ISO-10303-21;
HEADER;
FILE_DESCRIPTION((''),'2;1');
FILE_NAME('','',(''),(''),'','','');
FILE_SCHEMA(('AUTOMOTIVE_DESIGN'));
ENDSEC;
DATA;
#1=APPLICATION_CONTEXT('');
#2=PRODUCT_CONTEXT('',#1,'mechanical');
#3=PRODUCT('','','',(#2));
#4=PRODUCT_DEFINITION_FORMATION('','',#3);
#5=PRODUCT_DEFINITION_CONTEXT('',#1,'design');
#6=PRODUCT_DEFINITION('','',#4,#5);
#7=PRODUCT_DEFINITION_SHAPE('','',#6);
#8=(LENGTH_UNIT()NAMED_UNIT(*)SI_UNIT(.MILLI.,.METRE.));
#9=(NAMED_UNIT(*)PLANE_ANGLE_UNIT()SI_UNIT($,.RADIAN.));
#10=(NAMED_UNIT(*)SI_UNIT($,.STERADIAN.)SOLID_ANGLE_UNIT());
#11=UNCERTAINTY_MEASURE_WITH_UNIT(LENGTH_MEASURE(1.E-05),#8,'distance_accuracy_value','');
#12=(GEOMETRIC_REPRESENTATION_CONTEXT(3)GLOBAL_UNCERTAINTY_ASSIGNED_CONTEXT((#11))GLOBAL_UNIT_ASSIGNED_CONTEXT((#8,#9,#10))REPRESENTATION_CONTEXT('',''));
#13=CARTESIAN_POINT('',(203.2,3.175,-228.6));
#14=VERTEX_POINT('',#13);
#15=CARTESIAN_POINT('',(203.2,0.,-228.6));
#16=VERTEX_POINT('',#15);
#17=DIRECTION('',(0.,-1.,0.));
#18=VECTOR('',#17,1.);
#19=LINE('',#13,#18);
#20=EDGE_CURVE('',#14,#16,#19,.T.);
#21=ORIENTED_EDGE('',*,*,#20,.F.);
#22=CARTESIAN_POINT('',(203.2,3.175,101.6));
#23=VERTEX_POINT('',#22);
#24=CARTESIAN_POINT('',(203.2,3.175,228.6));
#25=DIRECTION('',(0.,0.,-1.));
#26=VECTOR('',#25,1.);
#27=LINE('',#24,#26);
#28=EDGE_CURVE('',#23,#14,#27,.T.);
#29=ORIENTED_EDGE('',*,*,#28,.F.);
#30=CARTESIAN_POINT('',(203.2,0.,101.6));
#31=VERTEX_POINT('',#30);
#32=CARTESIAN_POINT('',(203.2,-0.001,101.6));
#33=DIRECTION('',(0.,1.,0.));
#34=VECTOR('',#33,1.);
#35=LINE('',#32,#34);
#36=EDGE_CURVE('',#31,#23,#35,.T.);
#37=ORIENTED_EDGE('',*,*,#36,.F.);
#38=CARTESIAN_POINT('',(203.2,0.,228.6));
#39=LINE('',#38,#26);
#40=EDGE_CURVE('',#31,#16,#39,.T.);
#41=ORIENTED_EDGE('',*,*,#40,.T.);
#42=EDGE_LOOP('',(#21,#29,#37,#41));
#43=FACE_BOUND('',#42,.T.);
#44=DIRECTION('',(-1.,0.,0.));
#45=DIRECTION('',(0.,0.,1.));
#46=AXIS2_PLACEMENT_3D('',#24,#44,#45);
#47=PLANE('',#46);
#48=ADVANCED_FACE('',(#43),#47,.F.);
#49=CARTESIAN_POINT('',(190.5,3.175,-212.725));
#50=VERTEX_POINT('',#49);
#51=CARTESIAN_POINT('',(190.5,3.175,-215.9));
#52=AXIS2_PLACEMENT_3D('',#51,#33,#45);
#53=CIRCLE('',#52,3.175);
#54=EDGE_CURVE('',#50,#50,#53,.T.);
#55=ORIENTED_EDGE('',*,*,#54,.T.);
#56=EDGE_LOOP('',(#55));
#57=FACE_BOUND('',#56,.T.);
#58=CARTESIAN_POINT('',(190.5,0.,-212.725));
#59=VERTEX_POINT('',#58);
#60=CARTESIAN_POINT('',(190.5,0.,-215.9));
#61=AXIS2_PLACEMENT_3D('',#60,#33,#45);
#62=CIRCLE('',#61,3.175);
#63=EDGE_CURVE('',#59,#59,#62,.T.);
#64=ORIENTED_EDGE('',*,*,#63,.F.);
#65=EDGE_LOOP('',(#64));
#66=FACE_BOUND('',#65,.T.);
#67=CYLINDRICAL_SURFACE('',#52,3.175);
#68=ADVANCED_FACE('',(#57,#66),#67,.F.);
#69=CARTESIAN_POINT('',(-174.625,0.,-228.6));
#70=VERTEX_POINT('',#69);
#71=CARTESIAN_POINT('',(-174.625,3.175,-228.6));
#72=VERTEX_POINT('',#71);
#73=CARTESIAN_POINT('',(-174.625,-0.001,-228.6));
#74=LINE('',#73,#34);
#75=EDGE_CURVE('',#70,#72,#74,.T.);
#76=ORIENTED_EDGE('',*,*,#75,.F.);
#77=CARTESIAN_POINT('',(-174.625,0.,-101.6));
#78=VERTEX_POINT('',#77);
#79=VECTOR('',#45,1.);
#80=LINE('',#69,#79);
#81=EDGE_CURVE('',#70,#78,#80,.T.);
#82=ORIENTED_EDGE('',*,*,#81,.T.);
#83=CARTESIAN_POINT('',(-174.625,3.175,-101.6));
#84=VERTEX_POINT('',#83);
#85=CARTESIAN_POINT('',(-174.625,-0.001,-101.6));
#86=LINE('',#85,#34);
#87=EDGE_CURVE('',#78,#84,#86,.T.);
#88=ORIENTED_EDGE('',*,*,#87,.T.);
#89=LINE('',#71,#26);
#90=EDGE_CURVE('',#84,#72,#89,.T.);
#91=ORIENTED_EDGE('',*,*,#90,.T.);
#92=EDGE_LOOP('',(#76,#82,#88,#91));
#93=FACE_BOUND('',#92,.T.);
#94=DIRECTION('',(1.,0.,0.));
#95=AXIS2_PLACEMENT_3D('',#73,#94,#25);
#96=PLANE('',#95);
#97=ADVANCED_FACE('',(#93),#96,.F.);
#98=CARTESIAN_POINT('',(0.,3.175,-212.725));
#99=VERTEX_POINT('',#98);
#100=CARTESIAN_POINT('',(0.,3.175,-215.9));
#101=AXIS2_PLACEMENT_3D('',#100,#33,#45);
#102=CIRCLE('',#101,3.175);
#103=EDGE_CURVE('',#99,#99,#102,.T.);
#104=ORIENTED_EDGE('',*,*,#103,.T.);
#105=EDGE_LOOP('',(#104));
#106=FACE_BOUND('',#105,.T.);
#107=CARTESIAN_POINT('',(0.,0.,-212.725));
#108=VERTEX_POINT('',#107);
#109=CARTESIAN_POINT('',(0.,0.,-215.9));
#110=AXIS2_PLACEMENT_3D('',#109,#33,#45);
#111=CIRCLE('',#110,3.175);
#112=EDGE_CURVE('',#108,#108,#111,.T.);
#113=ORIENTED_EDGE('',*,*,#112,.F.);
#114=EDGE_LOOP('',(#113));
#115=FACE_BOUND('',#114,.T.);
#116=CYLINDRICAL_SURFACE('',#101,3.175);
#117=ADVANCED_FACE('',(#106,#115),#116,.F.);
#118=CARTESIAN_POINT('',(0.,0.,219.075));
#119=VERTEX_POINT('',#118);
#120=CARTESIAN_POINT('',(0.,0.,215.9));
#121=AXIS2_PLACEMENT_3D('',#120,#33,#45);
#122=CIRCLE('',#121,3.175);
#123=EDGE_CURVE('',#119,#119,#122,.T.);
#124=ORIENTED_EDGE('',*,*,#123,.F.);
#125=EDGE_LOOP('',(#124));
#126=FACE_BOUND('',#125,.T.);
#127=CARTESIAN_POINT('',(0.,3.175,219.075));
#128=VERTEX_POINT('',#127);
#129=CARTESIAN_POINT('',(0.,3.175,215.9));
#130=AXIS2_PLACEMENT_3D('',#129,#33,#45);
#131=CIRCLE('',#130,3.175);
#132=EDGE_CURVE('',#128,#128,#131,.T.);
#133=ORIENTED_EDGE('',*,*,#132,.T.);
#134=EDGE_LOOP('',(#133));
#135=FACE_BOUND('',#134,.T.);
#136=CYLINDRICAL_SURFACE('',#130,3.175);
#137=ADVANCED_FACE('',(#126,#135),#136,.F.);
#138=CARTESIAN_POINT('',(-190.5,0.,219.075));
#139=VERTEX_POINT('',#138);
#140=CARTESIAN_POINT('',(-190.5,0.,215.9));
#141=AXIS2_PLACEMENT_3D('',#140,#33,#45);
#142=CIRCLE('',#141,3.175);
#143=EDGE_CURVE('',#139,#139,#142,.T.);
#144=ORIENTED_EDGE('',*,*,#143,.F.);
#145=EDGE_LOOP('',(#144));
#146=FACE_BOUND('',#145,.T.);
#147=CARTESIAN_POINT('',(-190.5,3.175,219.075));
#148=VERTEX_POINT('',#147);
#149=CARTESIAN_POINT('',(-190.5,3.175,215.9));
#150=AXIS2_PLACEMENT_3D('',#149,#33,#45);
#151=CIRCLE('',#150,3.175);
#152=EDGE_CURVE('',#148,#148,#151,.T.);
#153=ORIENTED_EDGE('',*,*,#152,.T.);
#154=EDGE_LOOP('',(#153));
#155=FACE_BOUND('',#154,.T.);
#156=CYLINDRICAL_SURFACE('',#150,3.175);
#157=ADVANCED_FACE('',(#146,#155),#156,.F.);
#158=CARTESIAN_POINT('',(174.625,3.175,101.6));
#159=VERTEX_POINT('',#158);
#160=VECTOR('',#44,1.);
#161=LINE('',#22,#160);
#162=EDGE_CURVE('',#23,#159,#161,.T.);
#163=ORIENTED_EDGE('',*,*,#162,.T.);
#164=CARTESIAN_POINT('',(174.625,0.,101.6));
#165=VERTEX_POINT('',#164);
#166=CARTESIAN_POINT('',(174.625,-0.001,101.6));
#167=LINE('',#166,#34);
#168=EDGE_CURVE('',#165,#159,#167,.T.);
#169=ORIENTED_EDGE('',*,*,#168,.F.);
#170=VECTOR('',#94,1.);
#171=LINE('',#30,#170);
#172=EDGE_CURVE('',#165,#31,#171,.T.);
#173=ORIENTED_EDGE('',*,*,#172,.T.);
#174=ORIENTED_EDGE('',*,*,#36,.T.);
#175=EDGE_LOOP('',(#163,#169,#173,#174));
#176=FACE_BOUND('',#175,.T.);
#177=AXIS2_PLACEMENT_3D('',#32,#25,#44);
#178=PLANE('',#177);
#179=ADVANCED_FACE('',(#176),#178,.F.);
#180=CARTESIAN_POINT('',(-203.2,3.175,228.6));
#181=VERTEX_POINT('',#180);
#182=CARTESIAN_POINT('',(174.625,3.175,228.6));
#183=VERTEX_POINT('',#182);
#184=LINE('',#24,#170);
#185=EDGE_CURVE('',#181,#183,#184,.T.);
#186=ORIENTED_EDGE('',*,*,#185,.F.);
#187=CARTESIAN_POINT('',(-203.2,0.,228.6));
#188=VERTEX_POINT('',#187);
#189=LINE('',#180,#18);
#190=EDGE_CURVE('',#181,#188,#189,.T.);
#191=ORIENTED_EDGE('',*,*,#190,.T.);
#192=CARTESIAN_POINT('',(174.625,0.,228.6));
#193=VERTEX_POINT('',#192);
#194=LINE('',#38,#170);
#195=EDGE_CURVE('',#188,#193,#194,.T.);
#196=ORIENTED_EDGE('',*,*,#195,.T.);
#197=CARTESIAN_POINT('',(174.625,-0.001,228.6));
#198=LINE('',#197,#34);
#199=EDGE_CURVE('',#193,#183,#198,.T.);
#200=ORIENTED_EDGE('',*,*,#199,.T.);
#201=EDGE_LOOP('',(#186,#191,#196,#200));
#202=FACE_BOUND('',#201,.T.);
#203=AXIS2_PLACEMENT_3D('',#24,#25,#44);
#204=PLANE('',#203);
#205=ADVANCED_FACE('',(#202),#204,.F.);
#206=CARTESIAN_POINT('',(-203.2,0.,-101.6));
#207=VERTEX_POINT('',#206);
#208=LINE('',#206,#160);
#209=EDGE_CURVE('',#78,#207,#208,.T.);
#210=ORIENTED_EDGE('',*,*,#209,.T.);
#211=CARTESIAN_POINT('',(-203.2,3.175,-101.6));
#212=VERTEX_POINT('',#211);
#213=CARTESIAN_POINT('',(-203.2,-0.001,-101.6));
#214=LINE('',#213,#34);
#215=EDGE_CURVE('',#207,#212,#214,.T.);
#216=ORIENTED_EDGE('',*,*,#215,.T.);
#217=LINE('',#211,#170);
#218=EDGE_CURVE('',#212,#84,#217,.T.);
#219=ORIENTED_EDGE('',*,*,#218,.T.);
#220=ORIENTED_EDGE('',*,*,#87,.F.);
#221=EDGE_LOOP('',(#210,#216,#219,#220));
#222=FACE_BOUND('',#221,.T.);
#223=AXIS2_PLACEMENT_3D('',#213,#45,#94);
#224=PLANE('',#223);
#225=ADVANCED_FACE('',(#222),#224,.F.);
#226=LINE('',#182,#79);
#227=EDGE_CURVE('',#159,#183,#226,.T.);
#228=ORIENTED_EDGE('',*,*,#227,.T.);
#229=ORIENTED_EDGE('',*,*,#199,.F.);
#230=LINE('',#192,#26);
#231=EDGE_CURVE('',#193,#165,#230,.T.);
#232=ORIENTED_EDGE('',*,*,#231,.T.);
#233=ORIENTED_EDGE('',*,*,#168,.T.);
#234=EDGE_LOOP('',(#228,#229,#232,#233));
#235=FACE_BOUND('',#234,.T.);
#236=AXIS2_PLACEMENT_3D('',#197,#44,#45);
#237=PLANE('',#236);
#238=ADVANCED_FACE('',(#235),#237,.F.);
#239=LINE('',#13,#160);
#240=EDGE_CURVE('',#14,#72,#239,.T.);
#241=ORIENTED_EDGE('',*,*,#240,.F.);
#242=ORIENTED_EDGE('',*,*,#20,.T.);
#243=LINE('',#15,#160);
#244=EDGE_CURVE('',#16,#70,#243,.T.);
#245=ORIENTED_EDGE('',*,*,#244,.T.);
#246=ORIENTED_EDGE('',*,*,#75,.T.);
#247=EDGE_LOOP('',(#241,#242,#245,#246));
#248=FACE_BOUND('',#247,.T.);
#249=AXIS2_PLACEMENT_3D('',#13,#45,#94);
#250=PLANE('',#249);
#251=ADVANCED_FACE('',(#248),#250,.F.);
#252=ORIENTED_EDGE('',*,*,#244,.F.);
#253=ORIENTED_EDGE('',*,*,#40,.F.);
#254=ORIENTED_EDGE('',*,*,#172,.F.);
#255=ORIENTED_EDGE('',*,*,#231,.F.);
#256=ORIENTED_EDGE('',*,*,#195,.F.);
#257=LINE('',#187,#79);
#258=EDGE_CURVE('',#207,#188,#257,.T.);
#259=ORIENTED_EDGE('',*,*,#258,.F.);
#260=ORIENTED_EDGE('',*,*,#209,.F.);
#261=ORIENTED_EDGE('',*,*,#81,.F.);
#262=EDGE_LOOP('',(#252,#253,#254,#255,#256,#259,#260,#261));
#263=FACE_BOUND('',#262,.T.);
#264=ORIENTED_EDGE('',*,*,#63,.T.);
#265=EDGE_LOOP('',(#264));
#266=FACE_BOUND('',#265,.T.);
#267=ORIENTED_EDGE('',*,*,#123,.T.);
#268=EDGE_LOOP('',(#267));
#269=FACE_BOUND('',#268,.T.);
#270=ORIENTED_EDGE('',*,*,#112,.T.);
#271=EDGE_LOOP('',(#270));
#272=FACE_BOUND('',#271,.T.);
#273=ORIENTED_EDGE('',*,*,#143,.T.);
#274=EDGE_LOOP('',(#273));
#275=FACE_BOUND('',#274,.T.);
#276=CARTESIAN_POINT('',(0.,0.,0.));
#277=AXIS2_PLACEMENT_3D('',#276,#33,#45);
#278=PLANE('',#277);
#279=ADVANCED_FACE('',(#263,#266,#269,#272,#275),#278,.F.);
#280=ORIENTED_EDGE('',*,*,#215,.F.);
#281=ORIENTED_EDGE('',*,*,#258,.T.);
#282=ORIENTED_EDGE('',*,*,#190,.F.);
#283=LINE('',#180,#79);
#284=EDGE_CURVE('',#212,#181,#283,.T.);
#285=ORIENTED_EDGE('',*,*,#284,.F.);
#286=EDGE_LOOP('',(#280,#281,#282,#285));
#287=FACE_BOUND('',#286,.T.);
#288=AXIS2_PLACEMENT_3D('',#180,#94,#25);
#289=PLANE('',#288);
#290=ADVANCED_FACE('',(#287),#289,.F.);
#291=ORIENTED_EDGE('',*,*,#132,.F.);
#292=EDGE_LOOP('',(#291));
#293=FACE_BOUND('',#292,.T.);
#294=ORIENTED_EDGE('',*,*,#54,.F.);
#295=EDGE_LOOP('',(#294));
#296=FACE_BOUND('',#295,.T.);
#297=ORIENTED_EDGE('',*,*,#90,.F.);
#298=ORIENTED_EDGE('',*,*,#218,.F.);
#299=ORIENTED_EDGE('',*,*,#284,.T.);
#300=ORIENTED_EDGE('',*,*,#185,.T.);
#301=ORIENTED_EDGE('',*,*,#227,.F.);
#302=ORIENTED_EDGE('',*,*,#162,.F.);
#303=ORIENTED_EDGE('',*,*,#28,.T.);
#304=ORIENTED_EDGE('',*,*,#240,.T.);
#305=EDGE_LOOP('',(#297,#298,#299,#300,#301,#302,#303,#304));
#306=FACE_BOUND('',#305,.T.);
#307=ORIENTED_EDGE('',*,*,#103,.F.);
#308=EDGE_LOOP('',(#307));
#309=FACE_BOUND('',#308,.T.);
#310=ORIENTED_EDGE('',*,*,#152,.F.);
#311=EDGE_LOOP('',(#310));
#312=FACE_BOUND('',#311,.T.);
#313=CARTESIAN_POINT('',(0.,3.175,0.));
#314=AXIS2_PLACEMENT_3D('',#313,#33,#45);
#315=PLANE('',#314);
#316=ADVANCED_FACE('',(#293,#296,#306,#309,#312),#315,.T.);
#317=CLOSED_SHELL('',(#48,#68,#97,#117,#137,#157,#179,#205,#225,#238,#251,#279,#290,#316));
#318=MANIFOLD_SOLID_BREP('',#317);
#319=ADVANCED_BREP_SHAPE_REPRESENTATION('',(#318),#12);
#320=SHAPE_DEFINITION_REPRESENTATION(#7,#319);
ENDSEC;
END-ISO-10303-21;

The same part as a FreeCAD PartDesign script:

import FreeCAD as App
import Part
import Sketcher

V = App.Vector
Q = App.Units.Quantity


def add_polygon(sketch, points):
    """Adds a closed chain of lines whose ends are joined by coincident constraints."""
    first, n = sketch.GeometryCount, len(points)
    for a, b in zip(points, points[1:] + points[:1]):
        sketch.addGeometry(Part.LineSegment(App.Vector(*a, 0), App.Vector(*b, 0)), False)
    for i in range(n):
        sketch.addConstraint(Sketcher.Constraint("Coincident", first + i, 2, first + (i + 1) % n, 1))

doc = App.newDocument("Part")
params = doc.addObject("Spreadsheet::Sheet", "Params")
for row, (alias, value) in enumerate([
    ("sketch1_width", "16 in"),
    ("sketch1_height", "18 in"),
    ("pad1_length", "0.125 in"),
    ("sketch2_height", "5 in"),
    ("sketch2_width", "1.125 in"),
    ("sketch3_height", "5 in"),
    ("sketch3_width", "1.125 in"),
    ("sketch4_diameter", "0.25 in"),
    ("hole_diameter", "0.25 in"),
], start=1):
    params.set(f"A{row}", alias)
    params.set(f"B{row}", "=" + value)
    params.setAlias(f"B{row}", alias)

body = doc.addObject("PartDesign::Body", "Body")

sketch1 = body.newObject("Sketcher::SketchObject", "Sketch")
sketch1.AttachmentSupport = (doc.getObject("XZ_Plane"), [""])
sketch1.MapMode = "FlatFace"
add_polygon(sketch1, [(-203.2, -228.6), (-203.2, 228.6), (203.2, 228.6), (203.2, -228.6)])
sketch1.addConstraint(Sketcher.Constraint("Vertical", 0))
sketch1.addConstraint(Sketcher.Constraint("Horizontal", 1))
sketch1.addConstraint(Sketcher.Constraint("Vertical", 2))
sketch1.addConstraint(Sketcher.Constraint("Horizontal", 3))
sketch1.addConstraint(Sketcher.Constraint("Symmetric", 0, 2, 2, 2, -1, 1))
sketch1.addConstraint(Sketcher.Constraint("DistanceX", 1, 1, 1, 2, Q("16 in")))
sketch1.addConstraint(Sketcher.Constraint("DistanceY", 0, 1, 0, 2, Q("18 in")))
sketch1.setExpression("Constraints[9]", "Params.sketch1_width")
sketch1.setExpression("Constraints[10]", "Params.sketch1_height")
pad1 = body.newObject("PartDesign::Pad", "Pad")
pad1.Profile = sketch1
pad1.setExpression("Length", "Params.pad1_length")
pad1.Reversed = True

sketch2 = body.newObject("Sketcher::SketchObject", "Sketch001")
sketch2.AttachmentSupport = (doc.getObject("XZ_Plane"), [""])
sketch2.MapMode = "FlatFace"
sketch2.AttachmentOffset = App.Placement(V(0, 0, -0.125 * 25.4), App.Rotation())
add_polygon(sketch2, [(-203.2, -228.6), (-203.2, -101.6), (-174.625, -101.6), (-174.625, -228.6)])
sketch2.addConstraint(Sketcher.Constraint("Vertical", 0))
sketch2.addConstraint(Sketcher.Constraint("Horizontal", 1))
sketch2.addConstraint(Sketcher.Constraint("Vertical", 2))
sketch2.addConstraint(Sketcher.Constraint("Horizontal", 3))
sketch2.addConstraint(Sketcher.Constraint("DistanceY", 0, 1, 0, 2, Q("5 in")))
sketch2.addConstraint(Sketcher.Constraint("DistanceX", 0, 2, -1, 1, Q("8 in")))
sketch2.addConstraint(Sketcher.Constraint("DistanceY", 0, 2, -1, 1, Q("4 in")))
sketch2.addConstraint(Sketcher.Constraint("DistanceX", 1, 1, 1, 2, Q("1.125 in")))
sketch2.setExpression("Constraints[8]", "Params.sketch2_height")
sketch2.setExpression("Constraints[11]", "Params.sketch2_width")
pocket1 = body.newObject("PartDesign::Pocket", "Pocket")
pocket1.Profile = sketch2
pocket1.Type = "UpToFirst"
pocket1.Reversed = True

sketch3 = body.newObject("Sketcher::SketchObject", "Sketch002")
sketch3.AttachmentSupport = (doc.getObject("XZ_Plane"), [""])
sketch3.MapMode = "FlatFace"
sketch3.AttachmentOffset = App.Placement(V(0, 0, -0.125 * 25.4), App.Rotation())
add_polygon(sketch3, [(174.625, 101.6), (174.625, 228.6), (203.2, 228.6), (203.2, 101.6)])
sketch3.addConstraint(Sketcher.Constraint("Vertical", 0))
sketch3.addConstraint(Sketcher.Constraint("Horizontal", 1))
sketch3.addConstraint(Sketcher.Constraint("Vertical", 2))
sketch3.addConstraint(Sketcher.Constraint("Horizontal", 3))
sketch3.addConstraint(Sketcher.Constraint("DistanceY", 0, 1, 0, 2, Q("5 in")))
sketch3.addConstraint(Sketcher.Constraint("DistanceY", -1, 1, 0, 2, Q("9 in")))
sketch3.addConstraint(Sketcher.Constraint("DistanceX", -1, 1, 1, 2, Q("8 in")))
sketch3.addConstraint(Sketcher.Constraint("DistanceX", 1, 1, 1, 2, Q("1.125 in")))
sketch3.setExpression("Constraints[8]", "Params.sketch3_height")
sketch3.setExpression("Constraints[11]", "Params.sketch3_width")
pocket2 = body.newObject("PartDesign::Pocket", "Pocket001")
pocket2.Profile = sketch3
pocket2.Type = "UpToFirst"
pocket2.Reversed = True

sketch4 = body.newObject("Sketcher::SketchObject", "Sketch003")
sketch4.AttachmentSupport = (doc.getObject("XZ_Plane"), [""])
sketch4.MapMode = "FlatFace"
sketch4.AttachmentOffset = App.Placement(V(0, 0, -0.125 * 25.4), App.Rotation())
sketch4.addGeometry(Part.Circle(V(-190.5, 215.9, 0), V(0, 0, 1), 3.175), False)
sketch4.addGeometry(Part.Circle(V(190.5, -215.9, 0), V(0, 0, 1), 3.175), False)
sketch4.addGeometry(Part.Circle(V(0, -215.9, 0), V(0, 0, 1), 3.175), False)
sketch4.addGeometry(Part.Circle(V(0, 215.9, 0), V(0, 0, 1), 3.175), False)
sketch4.addConstraint(Sketcher.Constraint("Equal", 0, 1))
sketch4.addConstraint(Sketcher.Constraint("Equal", 1, 2))
sketch4.addConstraint(Sketcher.Constraint("Equal", 2, 3))
sketch4.addConstraint(Sketcher.Constraint("Symmetric", 0, 3, 1, 3, -1, 1))
sketch4.addConstraint(Sketcher.Constraint("Symmetric", 2, 3, 3, 3, -1, 1))
sketch4.addConstraint(Sketcher.Constraint("PointOnObject", 2, 3, -2))
sketch4.addConstraint(Sketcher.Constraint("Horizontal", 1, 3, 2, 3))
sketch4.addConstraint(Sketcher.Constraint("Diameter", 0, Q("0.25 in")))
sketch4.addConstraint(Sketcher.Constraint("DistanceX", 0, 3, 1, 3, Q("15 in")))
sketch4.addConstraint(Sketcher.Constraint("DistanceY", 1, 3, 0, 3, Q("17 in")))
sketch4.setExpression("Constraints[7]", "Params.sketch4_diameter")
doc.recompute()
hole = body.newObject("PartDesign::Hole", "Hole")
hole.Profile = sketch4
hole.ThreadType = "None"
hole.setExpression("Diameter", "Params.hole_diameter")
hole.DepthType = "ThroughAll"
hole.Reversed = True

doc.recompute()
